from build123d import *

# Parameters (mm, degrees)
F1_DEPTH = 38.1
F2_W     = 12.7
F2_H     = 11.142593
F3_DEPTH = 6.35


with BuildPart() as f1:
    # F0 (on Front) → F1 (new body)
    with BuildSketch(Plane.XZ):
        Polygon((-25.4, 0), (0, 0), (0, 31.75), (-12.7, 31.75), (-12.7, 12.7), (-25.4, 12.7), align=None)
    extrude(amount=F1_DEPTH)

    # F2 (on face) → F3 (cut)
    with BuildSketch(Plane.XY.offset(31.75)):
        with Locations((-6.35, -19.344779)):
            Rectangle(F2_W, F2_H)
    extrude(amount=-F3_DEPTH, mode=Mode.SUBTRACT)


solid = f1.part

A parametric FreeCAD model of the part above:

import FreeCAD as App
import Part
import Sketcher

V = App.Vector
Q = App.Units.Quantity

doc = App.newDocument("Part")
body = doc.addObject("PartDesign::Body", "Body")

sketch1 = body.newObject("Sketcher::SketchObject", "Sketch")
sketch1.AttachmentSupport = (doc.getObject("XZ_Plane"), [""])
sketch1.MapMode = "FlatFace"
sketch1.addGeometry([
    Part.LineSegment(V(-25.4, 0, 0), V(0, 0, 0)),
    Part.LineSegment(V(0, 0, 0), V(0, 31.75, 0)),
    Part.LineSegment(V(0, 31.75, 0), V(-12.7, 31.75, 0)),
    Part.LineSegment(V(-12.7, 31.75, 0), V(-12.7, 12.7, 0)),
    Part.LineSegment(V(-12.7, 12.7, 0), V(-25.4, 12.7, 0)),
    Part.LineSegment(V(-25.4, 12.7, 0), V(-25.4, 0, 0)),
], False)
sketch1.addConstraint([
    Sketcher.Constraint("Coincident", 0, 2, 1, 1),
    Sketcher.Constraint("Coincident", 1, 2, 2, 1),
    Sketcher.Constraint("Coincident", 2, 2, 3, 1),
    Sketcher.Constraint("Coincident", 3, 2, 4, 1),
    Sketcher.Constraint("Coincident", 4, 2, 5, 1),
    Sketcher.Constraint("Coincident", 5, 2, 0, 1),
    Sketcher.Constraint("Horizontal", 0),
    Sketcher.Constraint("Vertical", 1),
    Sketcher.Constraint("Horizontal", 2),
    Sketcher.Constraint("Vertical", 3),
    Sketcher.Constraint("Horizontal", 4),
    Sketcher.Constraint("Vertical", 5),
    Sketcher.Constraint("Coincident", 0, 2, -1, 1),
    Sketcher.Constraint("Equal", 2, 4),
    Sketcher.Constraint("Equal", 4, 5),
    Sketcher.Constraint("DistanceX", 0, 1, 0, 2, Q("1 in")),
    Sketcher.Constraint("DistanceY", 1, 1, 1, 2, Q("1.25 in")),
])
pad1 = body.newObject("PartDesign::Pad", "Pad")
pad1.Profile = sketch1
pad1.Length = Q("1.5 in")

sketch2 = body.newObject("Sketcher::SketchObject", "Sketch001")
sketch2.AttachmentSupport = (doc.getObject("XY_Plane"), [""])
sketch2.MapMode = "FlatFace"
sketch2.AttachmentOffset = App.Placement(V(0, 0, 1.25 * 25.4), App.Rotation())
sketch2.addGeometry([
    Part.LineSegment(V(-12.7, -13.773483, 0), V(-12.7, -24.916076, 0)),
    Part.LineSegment(V(-12.7, -24.916076, 0), V(0, -24.916076, 0)),
    Part.LineSegment(V(0, -24.916076, 0), V(0, -13.773483, 0)),
    Part.LineSegment(V(0, -13.773483, 0), V(-12.7, -13.773483, 0)),
], False)
sketch2.addConstraint([
    Sketcher.Constraint("Coincident", 0, 2, 1, 1),
    Sketcher.Constraint("Coincident", 1, 2, 2, 1),
    Sketcher.Constraint("Coincident", 2, 2, 3, 1),
    Sketcher.Constraint("Coincident", 3, 2, 0, 1),
    Sketcher.Constraint("Vertical", 0),
    Sketcher.Constraint("Horizontal", 1),
    Sketcher.Constraint("Vertical", 2),
    Sketcher.Constraint("Horizontal", 3),
    Sketcher.Constraint("PointOnObject", 1, 2, -2),
    Sketcher.Constraint("DistanceX", 1, 1, 1, 2, Q("0.5 in")),
    Sketcher.Constraint("DistanceY", 0, 2, 0, 1, 11.142593),
    Sketcher.Constraint("DistanceY", 0, 2, -1, 1, 24.916076),
])
pocket1 = body.newObject("PartDesign::Pocket", "Pocket")
pocket1.Profile = sketch2
pocket1.Length = Q("0.25 in")

doc.recompute()
